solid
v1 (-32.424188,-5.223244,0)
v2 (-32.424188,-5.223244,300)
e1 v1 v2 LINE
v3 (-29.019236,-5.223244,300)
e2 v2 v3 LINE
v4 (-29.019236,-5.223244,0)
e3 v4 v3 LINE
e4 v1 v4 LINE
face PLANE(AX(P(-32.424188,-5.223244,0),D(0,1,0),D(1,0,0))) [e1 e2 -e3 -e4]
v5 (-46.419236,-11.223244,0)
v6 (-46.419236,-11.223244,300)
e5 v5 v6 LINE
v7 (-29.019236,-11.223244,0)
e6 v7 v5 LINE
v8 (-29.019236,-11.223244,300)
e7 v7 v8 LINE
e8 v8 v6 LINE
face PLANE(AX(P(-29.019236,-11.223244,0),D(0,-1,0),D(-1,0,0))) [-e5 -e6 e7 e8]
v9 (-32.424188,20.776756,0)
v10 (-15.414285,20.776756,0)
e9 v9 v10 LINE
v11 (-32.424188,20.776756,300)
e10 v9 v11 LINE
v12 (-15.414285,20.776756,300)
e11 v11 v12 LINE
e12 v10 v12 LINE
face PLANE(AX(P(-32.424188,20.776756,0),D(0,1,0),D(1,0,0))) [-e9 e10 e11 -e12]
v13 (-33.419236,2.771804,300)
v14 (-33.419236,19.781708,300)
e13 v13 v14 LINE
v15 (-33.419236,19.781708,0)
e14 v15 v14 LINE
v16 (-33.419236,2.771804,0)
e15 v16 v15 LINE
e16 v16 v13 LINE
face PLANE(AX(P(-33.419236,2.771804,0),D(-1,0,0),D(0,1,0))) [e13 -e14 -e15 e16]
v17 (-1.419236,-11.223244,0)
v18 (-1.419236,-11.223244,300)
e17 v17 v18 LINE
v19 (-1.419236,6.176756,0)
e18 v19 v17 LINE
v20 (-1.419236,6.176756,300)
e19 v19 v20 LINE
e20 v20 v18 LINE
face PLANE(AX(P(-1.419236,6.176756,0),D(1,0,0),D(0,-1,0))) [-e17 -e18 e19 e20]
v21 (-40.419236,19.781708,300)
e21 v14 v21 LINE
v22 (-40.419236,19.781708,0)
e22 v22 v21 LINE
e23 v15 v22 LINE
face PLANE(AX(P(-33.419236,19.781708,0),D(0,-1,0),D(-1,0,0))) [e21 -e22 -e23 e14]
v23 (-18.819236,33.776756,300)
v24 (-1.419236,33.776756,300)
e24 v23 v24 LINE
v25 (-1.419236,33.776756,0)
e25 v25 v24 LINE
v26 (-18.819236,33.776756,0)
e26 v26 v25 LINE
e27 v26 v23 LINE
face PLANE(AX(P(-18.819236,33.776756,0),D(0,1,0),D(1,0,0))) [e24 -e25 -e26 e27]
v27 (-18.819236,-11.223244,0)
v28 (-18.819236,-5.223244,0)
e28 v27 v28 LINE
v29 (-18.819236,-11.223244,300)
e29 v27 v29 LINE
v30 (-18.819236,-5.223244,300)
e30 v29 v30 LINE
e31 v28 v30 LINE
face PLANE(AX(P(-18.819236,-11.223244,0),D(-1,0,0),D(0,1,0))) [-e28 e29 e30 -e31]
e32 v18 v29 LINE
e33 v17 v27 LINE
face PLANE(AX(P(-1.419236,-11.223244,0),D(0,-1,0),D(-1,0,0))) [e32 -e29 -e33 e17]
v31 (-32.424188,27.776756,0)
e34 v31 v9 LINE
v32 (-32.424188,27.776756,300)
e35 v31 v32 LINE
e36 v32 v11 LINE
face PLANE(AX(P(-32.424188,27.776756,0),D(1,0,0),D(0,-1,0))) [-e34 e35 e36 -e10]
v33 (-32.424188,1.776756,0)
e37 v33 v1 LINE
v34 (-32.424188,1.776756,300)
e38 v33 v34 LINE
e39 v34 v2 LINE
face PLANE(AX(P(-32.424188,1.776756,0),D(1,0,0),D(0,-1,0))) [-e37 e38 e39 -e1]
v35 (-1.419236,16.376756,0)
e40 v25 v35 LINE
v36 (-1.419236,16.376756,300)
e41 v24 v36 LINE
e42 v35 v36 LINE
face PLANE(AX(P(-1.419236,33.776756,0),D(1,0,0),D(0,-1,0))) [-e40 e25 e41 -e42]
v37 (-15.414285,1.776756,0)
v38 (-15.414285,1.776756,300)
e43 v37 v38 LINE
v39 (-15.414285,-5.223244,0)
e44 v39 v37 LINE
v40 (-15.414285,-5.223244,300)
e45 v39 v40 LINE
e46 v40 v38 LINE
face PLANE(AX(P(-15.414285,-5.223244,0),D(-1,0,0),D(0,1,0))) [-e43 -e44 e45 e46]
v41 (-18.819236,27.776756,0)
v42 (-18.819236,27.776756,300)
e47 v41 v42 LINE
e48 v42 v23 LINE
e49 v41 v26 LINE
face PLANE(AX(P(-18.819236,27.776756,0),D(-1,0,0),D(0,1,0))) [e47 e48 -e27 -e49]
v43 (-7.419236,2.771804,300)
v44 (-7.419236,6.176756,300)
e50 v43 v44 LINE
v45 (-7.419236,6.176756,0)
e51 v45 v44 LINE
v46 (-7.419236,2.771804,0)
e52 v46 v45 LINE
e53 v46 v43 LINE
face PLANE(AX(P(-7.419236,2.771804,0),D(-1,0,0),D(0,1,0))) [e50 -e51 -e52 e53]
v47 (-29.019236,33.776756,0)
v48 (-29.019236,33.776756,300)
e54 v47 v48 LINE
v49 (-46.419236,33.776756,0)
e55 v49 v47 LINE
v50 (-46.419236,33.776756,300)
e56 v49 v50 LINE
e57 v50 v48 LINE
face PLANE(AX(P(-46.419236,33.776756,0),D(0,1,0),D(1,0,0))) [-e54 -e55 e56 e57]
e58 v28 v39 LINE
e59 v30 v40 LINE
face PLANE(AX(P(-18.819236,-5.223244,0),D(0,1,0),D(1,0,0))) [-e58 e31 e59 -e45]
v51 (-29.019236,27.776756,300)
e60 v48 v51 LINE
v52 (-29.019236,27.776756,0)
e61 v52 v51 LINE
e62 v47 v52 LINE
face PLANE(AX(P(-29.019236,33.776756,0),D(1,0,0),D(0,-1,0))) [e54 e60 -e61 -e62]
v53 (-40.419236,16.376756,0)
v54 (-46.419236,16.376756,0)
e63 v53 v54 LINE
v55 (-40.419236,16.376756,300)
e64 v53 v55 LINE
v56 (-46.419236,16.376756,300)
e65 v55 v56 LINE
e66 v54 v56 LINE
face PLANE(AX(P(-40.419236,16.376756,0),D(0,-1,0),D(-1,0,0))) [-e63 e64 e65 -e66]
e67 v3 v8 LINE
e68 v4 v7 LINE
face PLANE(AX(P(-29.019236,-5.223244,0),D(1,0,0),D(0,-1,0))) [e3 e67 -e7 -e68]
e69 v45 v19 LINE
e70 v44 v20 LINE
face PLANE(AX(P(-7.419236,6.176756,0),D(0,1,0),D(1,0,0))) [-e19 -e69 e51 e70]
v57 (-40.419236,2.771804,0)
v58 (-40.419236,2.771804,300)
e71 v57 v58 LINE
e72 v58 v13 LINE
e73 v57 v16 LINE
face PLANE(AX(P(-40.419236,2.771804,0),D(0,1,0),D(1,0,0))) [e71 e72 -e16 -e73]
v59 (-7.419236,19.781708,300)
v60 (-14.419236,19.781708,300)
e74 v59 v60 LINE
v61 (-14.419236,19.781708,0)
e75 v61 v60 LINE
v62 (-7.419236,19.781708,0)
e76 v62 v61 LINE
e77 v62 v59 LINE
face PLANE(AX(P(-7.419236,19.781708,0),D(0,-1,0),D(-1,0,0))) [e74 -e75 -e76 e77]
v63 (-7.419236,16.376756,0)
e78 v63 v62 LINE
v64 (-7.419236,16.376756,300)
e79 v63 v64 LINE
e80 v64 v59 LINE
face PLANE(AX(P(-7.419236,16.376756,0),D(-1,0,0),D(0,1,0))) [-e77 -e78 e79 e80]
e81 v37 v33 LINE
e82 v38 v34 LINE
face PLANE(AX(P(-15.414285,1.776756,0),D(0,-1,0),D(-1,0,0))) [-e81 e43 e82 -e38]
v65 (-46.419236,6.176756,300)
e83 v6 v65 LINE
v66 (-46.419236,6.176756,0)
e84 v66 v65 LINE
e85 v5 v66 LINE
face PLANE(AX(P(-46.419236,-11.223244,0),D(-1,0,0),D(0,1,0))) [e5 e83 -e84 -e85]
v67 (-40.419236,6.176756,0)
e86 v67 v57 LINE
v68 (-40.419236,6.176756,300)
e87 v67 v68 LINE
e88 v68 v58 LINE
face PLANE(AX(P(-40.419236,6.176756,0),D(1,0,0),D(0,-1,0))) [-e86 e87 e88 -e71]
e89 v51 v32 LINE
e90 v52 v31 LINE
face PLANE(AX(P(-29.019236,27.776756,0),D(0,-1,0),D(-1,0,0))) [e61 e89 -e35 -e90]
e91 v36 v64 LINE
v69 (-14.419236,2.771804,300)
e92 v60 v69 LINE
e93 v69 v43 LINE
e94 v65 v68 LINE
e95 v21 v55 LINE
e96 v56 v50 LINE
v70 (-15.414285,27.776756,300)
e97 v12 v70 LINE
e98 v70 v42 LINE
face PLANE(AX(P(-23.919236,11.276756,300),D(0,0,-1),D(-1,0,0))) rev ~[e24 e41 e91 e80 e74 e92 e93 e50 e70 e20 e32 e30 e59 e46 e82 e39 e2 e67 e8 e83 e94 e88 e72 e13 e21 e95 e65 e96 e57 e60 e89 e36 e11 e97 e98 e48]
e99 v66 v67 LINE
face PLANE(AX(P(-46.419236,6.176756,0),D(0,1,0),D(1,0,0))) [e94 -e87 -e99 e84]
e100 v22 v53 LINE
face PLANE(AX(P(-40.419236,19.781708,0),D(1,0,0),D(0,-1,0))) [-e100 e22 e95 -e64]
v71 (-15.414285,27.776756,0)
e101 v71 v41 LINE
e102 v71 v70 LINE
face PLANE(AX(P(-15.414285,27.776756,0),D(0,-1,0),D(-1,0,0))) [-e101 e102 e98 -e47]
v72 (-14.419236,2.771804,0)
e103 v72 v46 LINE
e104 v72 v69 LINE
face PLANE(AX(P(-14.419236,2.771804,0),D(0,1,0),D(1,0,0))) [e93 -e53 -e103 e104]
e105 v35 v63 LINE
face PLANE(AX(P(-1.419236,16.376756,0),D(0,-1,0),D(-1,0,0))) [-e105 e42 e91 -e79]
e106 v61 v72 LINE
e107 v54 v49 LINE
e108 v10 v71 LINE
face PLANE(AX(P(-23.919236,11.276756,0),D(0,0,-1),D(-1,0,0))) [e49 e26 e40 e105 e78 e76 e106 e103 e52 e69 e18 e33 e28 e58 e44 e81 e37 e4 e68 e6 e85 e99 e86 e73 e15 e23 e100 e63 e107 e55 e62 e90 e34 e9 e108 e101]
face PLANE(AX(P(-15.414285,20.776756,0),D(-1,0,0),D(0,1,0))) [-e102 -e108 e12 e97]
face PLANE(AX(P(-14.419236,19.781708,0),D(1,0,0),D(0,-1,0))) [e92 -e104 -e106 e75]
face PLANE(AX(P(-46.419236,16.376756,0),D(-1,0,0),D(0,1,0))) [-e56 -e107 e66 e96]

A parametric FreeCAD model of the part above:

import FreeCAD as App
import Part
import Sketcher
from FreeCAD import Vector
Q = App.Units.Quantity

doc = App.newDocument("Part")
body = doc.addObject("PartDesign::Body", "Body")

sketch1 = body.newObject("Sketcher::SketchObject", "Sketch")
sketch1.AttachmentSupport = (doc.getObject("XY_Plane"), [""])
sketch1.MapMode = "FlatFace"
sketch1.addGeometry(Part.LineSegment(Vector(-1.4, 33.8, 0), Vector(-18.8, 33.8, 0)), False)
sketch1.addGeometry(Part.LineSegment(Vector(-18.8, 33.8, 0), Vector(-18.8, 27.8, 0)), False)
sketch1.addGeometry(Part.LineSegment(Vector(-18.8, 27.8, 0), Vector(-15.4, 27.8, 0)), False)
sketch1.addGeometry(Part.LineSegment(Vector(-15.4, 27.8, 0), Vector(-15.4, 20.8, 0)), False)
sketch1.addGeometry(Part.LineSegment(Vector(-15.4, 20.8, 0), Vector(-32.4, 20.8, 0)), False)
sketch1.addGeometry(Part.LineSegment(Vector(-32.4, 20.8, 0), Vector(-32.4, 27.8, 0)), False)
sketch1.addGeometry(Part.LineSegment(Vector(-32.4, 27.8, 0), Vector(-29, 27.8, 0)), False)
sketch1.addGeometry(Part.LineSegment(Vector(-29, 27.8, 0), Vector(-29, 33.8, 0)), False)
sketch1.addGeometry(Part.LineSegment(Vector(-29, 33.8, 0), Vector(-46.4, 33.8, 0)), False)
sketch1.addGeometry(Part.LineSegment(Vector(-46.4, 33.8, 0), Vector(-46.4, 16.4, 0)), False)
sketch1.addGeometry(Part.LineSegment(Vector(-46.4, 16.4, 0), Vector(-40.4, 16.4, 0)), False)
sketch1.addGeometry(Part.LineSegment(Vector(-40.4, 16.4, 0), Vector(-40.4, 19.8, 0)), False)
sketch1.addGeometry(Part.LineSegment(Vector(-40.4, 19.8, 0), Vector(-33.4, 19.8, 0)), False)
sketch1.addGeometry(Part.LineSegment(Vector(-33.4, 19.8, 0), Vector(-33.4, 2.8, 0)), False)
sketch1.addGeometry(Part.LineSegment(Vector(-33.4, 2.8, 0), Vector(-40.4, 2.8, 0)), False)
sketch1.addGeometry(Part.LineSegment(Vector(-40.4, 2.8, 0), Vector(-40.4, 6.2, 0)), False)
sketch1.addGeometry(Part.LineSegment(Vector(-40.4, 6.2, 0), Vector(-46.4, 6.2, 0)), False)
sketch1.addGeometry(Part.LineSegment(Vector(-46.4, 6.2, 0), Vector(-46.4, -11.2, 0)), False)
sketch1.addGeometry(Part.LineSegment(Vector(-46.4, -11.2, 0), Vector(-29, -11.2, 0)), False)
sketch1.addGeometry(Part.LineSegment(Vector(-29, -11.2, 0), Vector(-29, -5.2, 0)), False)
sketch1.addGeometry(Part.LineSegment(Vector(-29, -5.2, 0), Vector(-32.4, -5.2, 0)), False)
sketch1.addGeometry(Part.LineSegment(Vector(-32.4, -5.2, 0), Vector(-32.4, 1.8, 0)), False)
sketch1.addGeometry(Part.LineSegment(Vector(-32.4, 1.8, 0), Vector(-15.4, 1.8, 0)), False)
sketch1.addGeometry(Part.LineSegment(Vector(-15.4, 1.8, 0), Vector(-15.4, -5.2, 0)), False)
sketch1.addGeometry(Part.LineSegment(Vector(-15.4, -5.2, 0), Vector(-18.8, -5.2, 0)), False)
sketch1.addGeometry(Part.LineSegment(Vector(-18.8, -5.2, 0), Vector(-18.8, -11.2, 0)), False)
sketch1.addGeometry(Part.LineSegment(Vector(-18.8, -11.2, 0), Vector(-1.4, -11.2, 0)), False)
sketch1.addGeometry(Part.LineSegment(Vector(-1.4, -11.2, 0), Vector(-1.4, 6.2, 0)), False)
sketch1.addGeometry(Part.LineSegment(Vector(-1.4, 6.2, 0), Vector(-7.4, 6.2, 0)), False)
sketch1.addGeometry(Part.LineSegment(Vector(-7.4, 6.2, 0), Vector(-7.4, 2.8, 0)), False)
sketch1.addGeometry(Part.LineSegment(Vector(-7.4, 2.8, 0), Vector(-14.4, 2.8, 0)), False)
sketch1.addGeometry(Part.LineSegment(Vector(-14.4, 2.8, 0), Vector(-14.4, 19.8, 0)), False)
sketch1.addGeometry(Part.LineSegment(Vector(-14.4, 19.8, 0), Vector(-7.4, 19.8, 0)), False)
sketch1.addGeometry(Part.LineSegment(Vector(-7.4, 19.8, 0), Vector(-7.4, 16.4, 0)), False)
sketch1.addGeometry(Part.LineSegment(Vector(-7.4, 16.4, 0), Vector(-1.4, 16.4, 0)), False)
sketch1.addGeometry(Part.LineSegment(Vector(-1.4, 16.4, 0), Vector(-1.4, 33.8, 0)), False)
sketch1.addConstraint(Sketcher.Constraint("Coincident", 0, 2, 1, 1))
sketch1.addConstraint(Sketcher.Constraint("Coincident", 1, 2, 2, 1))
sketch1.addConstraint(Sketcher.Constraint("Coincident", 2, 2, 3, 1))
sketch1.addConstraint(Sketcher.Constraint("Coincident", 3, 2, 4, 1))
sketch1.addConstraint(Sketcher.Constraint("Coincident", 4, 2, 5, 1))
sketch1.addConstraint(Sketcher.Constraint("Coincident", 5, 2, 6, 1))
sketch1.addConstraint(Sketcher.Constraint("Coincident", 6, 2, 7, 1))
sketch1.addConstraint(Sketcher.Constraint("Coincident", 7, 2, 8, 1))
sketch1.addConstraint(Sketcher.Constraint("Coincident", 8, 2, 9, 1))
sketch1.addConstraint(Sketcher.Constraint("Coincident", 9, 2, 10, 1))
sketch1.addConstraint(Sketcher.Constraint("Coincident", 10, 2, 11, 1))
sketch1.addConstraint(Sketcher.Constraint("Coincident", 11, 2, 12, 1))
sketch1.addConstraint(Sketcher.Constraint("Coincident", 12, 2, 13, 1))
sketch1.addConstraint(Sketcher.Constraint("Coincident", 13, 2, 14, 1))
sketch1.addConstraint(Sketcher.Constraint("Coincident", 14, 2, 15, 1))
sketch1.addConstraint(Sketcher.Constraint("Coincident", 15, 2, 16, 1))
sketch1.addConstraint(Sketcher.Constraint("Coincident", 16, 2, 17, 1))
sketch1.addConstraint(Sketcher.Constraint("Coincident", 17, 2, 18, 1))
sketch1.addConstraint(Sketcher.Constraint("Coincident", 18, 2, 19, 1))
sketch1.addConstraint(Sketcher.Constraint("Coincident", 19, 2, 20, 1))
sketch1.addConstraint(Sketcher.Constraint("Coincident", 20, 2, 21, 1))
sketch1.addConstraint(Sketcher.Constraint("Coincident", 21, 2, 22, 1))
sketch1.addConstraint(Sketcher.Constraint("Coincident", 22, 2, 23, 1))
sketch1.addConstraint(Sketcher.Constraint("Coincident", 23, 2, 24, 1))
sketch1.addConstraint(Sketcher.Constraint("Coincident", 24, 2, 25, 1))
sketch1.addConstraint(Sketcher.Constraint("Coincident", 25, 2, 26, 1))
sketch1.addConstraint(Sketcher.Constraint("Coincident", 26, 2, 27, 1))
sketch1.addConstraint(Sketcher.Constraint("Coincident", 27, 2, 28, 1))
sketch1.addConstraint(Sketcher.Constraint("Coincident", 28, 2, 29, 1))
sketch1.addConstraint(Sketcher.Constraint("Coincident", 29, 2, 30, 1))
sketch1.addConstraint(Sketcher.Constraint("Coincident", 30, 2, 31, 1))
sketch1.addConstraint(Sketcher.Constraint("Coincident", 31, 2, 32, 1))
sketch1.addConstraint(Sketcher.Constraint("Coincident", 32, 2, 33, 1))
sketch1.addConstraint(Sketcher.Constraint("Coincident", 33, 2, 34, 1))
sketch1.addConstraint(Sketcher.Constraint("Coincident", 34, 2, 35, 1))
sketch1.addConstraint(Sketcher.Constraint("Coincident", 35, 2, 0, 1))
sketch1.addConstraint(Sketcher.Constraint("Horizontal", 0))
sketch1.addConstraint(Sketcher.Constraint("Vertical", 1))
sketch1.addConstraint(Sketcher.Constraint("Horizontal", 2))
sketch1.addConstraint(Sketcher.Constraint("Vertical", 3))
sketch1.addConstraint(Sketcher.Constraint("Horizontal", 4))
sketch1.addConstraint(Sketcher.Constraint("Vertical", 5))
sketch1.addConstraint(Sketcher.Constraint("Horizontal", 6))
sketch1.addConstraint(Sketcher.Constraint("Vertical", 7))
sketch1.addConstraint(Sketcher.Constraint("Horizontal", 8))
sketch1.addConstraint(Sketcher.Constraint("Vertical", 9))
sketch1.addConstraint(Sketcher.Constraint("Horizontal", 10))
sketch1.addConstraint(Sketcher.Constraint("Vertical", 11))
sketch1.addConstraint(Sketcher.Constraint("Horizontal", 12))
sketch1.addConstraint(Sketcher.Constraint("Vertical", 13))
sketch1.addConstraint(Sketcher.Constraint("Horizontal", 14))
sketch1.addConstraint(Sketcher.Constraint("Vertical", 15))
sketch1.addConstraint(Sketcher.Constraint("Horizontal", 16))
sketch1.addConstraint(Sketcher.Constraint("Vertical", 17))
sketch1.addConstraint(Sketcher.Constraint("Horizontal", 18))
sketch1.addConstraint(Sketcher.Constraint("Vertical", 19))
sketch1.addConstraint(Sketcher.Constraint("Horizontal", 20))
sketch1.addConstraint(Sketcher.Constraint("Vertical", 21))
sketch1.addConstraint(Sketcher.Constraint("Horizontal", 22))
sketch1.addConstraint(Sketcher.Constraint("Vertical", 23))
sketch1.addConstraint(Sketcher.Constraint("Horizontal", 24))
sketch1.addConstraint(Sketcher.Constraint("Vertical", 25))
sketch1.addConstraint(Sketcher.Constraint("Horizontal", 26))
sketch1.addConstraint(Sketcher.Constraint("Vertical", 27))
sketch1.addConstraint(Sketcher.Constraint("Horizontal", 28))
sketch1.addConstraint(Sketcher.Constraint("Vertical", 29))
sketch1.addConstraint(Sketcher.Constraint("Horizontal", 30))
sketch1.addConstraint(Sketcher.Constraint("Vertical", 31))
sketch1.addConstraint(Sketcher.Constraint("Horizontal", 32))
sketch1.addConstraint(Sketcher.Constraint("Vertical", 33))
sketch1.addConstraint(Sketcher.Constraint("Horizontal", 34))
sketch1.addConstraint(Sketcher.Constraint("Vertical", 35))
sketch1.addConstraint(Sketcher.Constraint("Horizontal", 2, 2, 5, 2))
sketch1.addConstraint(Sketcher.Constraint("Horizontal", 0, 2, 7, 2))
sketch1.addConstraint(Sketcher.Constraint("Horizontal", 20, 2, 23, 2))
sketch1.addConstraint(Sketcher.Constraint("Horizontal", 18, 2, 25, 2))
sketch1.addConstraint(Sketcher.Constraint("Horizontal", 16, 2, 27, 2))
sketch1.addConstraint(Sketcher.Constraint("Horizontal", 14, 2, 29, 2))
sketch1.addConstraint(Sketcher.Constraint("Horizontal", 12, 2, 31, 2))
sketch1.addConstraint(Sketcher.Constraint("Horizontal", 10, 2, 33, 2))
sketch1.addConstraint(Sketcher.Constraint("Vertical", 11, 2, 14, 2))
sketch1.addConstraint(Sketcher.Constraint("Vertical", 9, 2, 16, 2))
sketch1.addConstraint(Sketcher.Constraint("Vertical", 7, 2, 18, 2))
sketch1.addConstraint(Sketcher.Constraint("Vertical", 5, 2, 20, 2))
sketch1.addConstraint(Sketcher.Constraint("Vertical", 3, 2, 22, 2))
sketch1.addConstraint(Sketcher.Constraint("Vertical", 1, 2, 24, 2))
sketch1.addConstraint(Sketcher.Constraint("Vertical", 29, 2, 32, 2))
sketch1.addConstraint(Sketcher.Constraint("Vertical", 27, 2, 34, 2))
sketch1.addConstraint(Sketcher.Constraint("Equal", 2, 6))
sketch1.addConstraint(Sketcher.Constraint("Equal", 0, 8))
sketch1.addConstraint(Sketcher.Constraint("Equal", 16, 28))
sketch1.addConstraint(Sketcher.Constraint("Equal", 14, 30))
sketch1.addConstraint(Sketcher.Constraint("Equal", 34, 1))
sketch1.addConstraint(Sketcher.Constraint("Equal", 32, 3))
sketch1.addConstraint(Sketcher.Constraint("Equal", 26, 9))
sketch1.addConstraint(Sketcher.Constraint("Equal", 24, 11))
sketch1.addConstraint(Sketcher.Constraint("Equal", 22, 13))
sketch1.addConstraint(Sketcher.Constraint("Equal", 11, 15))
sketch1.addConstraint(Sketcher.Constraint("Equal", 9, 17))
sketch1.addConstraint(Sketcher.Constraint("Equal", 7, 19))
sketch1.addConstraint(Sketcher.Constraint("Equal", 5, 21))
sketch1.addConstraint(Sketcher.Constraint("DistanceX", 10, 1, 10, 2, Q("6 mm")))
sketch1.addConstraint(Sketcher.Constraint("DistanceX", 12, 1, 12, 2, Q("7 mm")))
sketch1.addConstraint(Sketcher.Constraint("DistanceX", 0, 2, 0, 1, Q("17.4 mm")))
sketch1.addConstraint(Sketcher.Constraint("DistanceX", 6, 2, 1, 2, Q("10.2 mm")))
sketch1.addConstraint(Sketcher.Constraint("DistanceX", 2, 1, 2, 2, Q("3.404952 mm")))
sketch1.addConstraint(Sketcher.Constraint("DistanceX", 0, 2, -1, 1, Q("18.819236 mm")))
sketch1.addConstraint(Sketcher.Constraint("DistanceY", -1, 1, 0, 2, Q("33.776756 mm")))
pad1 = body.newObject("PartDesign::Pad", "Pad")
pad1.Profile = sketch1
pad1.Length = 300

doc.recompute()
